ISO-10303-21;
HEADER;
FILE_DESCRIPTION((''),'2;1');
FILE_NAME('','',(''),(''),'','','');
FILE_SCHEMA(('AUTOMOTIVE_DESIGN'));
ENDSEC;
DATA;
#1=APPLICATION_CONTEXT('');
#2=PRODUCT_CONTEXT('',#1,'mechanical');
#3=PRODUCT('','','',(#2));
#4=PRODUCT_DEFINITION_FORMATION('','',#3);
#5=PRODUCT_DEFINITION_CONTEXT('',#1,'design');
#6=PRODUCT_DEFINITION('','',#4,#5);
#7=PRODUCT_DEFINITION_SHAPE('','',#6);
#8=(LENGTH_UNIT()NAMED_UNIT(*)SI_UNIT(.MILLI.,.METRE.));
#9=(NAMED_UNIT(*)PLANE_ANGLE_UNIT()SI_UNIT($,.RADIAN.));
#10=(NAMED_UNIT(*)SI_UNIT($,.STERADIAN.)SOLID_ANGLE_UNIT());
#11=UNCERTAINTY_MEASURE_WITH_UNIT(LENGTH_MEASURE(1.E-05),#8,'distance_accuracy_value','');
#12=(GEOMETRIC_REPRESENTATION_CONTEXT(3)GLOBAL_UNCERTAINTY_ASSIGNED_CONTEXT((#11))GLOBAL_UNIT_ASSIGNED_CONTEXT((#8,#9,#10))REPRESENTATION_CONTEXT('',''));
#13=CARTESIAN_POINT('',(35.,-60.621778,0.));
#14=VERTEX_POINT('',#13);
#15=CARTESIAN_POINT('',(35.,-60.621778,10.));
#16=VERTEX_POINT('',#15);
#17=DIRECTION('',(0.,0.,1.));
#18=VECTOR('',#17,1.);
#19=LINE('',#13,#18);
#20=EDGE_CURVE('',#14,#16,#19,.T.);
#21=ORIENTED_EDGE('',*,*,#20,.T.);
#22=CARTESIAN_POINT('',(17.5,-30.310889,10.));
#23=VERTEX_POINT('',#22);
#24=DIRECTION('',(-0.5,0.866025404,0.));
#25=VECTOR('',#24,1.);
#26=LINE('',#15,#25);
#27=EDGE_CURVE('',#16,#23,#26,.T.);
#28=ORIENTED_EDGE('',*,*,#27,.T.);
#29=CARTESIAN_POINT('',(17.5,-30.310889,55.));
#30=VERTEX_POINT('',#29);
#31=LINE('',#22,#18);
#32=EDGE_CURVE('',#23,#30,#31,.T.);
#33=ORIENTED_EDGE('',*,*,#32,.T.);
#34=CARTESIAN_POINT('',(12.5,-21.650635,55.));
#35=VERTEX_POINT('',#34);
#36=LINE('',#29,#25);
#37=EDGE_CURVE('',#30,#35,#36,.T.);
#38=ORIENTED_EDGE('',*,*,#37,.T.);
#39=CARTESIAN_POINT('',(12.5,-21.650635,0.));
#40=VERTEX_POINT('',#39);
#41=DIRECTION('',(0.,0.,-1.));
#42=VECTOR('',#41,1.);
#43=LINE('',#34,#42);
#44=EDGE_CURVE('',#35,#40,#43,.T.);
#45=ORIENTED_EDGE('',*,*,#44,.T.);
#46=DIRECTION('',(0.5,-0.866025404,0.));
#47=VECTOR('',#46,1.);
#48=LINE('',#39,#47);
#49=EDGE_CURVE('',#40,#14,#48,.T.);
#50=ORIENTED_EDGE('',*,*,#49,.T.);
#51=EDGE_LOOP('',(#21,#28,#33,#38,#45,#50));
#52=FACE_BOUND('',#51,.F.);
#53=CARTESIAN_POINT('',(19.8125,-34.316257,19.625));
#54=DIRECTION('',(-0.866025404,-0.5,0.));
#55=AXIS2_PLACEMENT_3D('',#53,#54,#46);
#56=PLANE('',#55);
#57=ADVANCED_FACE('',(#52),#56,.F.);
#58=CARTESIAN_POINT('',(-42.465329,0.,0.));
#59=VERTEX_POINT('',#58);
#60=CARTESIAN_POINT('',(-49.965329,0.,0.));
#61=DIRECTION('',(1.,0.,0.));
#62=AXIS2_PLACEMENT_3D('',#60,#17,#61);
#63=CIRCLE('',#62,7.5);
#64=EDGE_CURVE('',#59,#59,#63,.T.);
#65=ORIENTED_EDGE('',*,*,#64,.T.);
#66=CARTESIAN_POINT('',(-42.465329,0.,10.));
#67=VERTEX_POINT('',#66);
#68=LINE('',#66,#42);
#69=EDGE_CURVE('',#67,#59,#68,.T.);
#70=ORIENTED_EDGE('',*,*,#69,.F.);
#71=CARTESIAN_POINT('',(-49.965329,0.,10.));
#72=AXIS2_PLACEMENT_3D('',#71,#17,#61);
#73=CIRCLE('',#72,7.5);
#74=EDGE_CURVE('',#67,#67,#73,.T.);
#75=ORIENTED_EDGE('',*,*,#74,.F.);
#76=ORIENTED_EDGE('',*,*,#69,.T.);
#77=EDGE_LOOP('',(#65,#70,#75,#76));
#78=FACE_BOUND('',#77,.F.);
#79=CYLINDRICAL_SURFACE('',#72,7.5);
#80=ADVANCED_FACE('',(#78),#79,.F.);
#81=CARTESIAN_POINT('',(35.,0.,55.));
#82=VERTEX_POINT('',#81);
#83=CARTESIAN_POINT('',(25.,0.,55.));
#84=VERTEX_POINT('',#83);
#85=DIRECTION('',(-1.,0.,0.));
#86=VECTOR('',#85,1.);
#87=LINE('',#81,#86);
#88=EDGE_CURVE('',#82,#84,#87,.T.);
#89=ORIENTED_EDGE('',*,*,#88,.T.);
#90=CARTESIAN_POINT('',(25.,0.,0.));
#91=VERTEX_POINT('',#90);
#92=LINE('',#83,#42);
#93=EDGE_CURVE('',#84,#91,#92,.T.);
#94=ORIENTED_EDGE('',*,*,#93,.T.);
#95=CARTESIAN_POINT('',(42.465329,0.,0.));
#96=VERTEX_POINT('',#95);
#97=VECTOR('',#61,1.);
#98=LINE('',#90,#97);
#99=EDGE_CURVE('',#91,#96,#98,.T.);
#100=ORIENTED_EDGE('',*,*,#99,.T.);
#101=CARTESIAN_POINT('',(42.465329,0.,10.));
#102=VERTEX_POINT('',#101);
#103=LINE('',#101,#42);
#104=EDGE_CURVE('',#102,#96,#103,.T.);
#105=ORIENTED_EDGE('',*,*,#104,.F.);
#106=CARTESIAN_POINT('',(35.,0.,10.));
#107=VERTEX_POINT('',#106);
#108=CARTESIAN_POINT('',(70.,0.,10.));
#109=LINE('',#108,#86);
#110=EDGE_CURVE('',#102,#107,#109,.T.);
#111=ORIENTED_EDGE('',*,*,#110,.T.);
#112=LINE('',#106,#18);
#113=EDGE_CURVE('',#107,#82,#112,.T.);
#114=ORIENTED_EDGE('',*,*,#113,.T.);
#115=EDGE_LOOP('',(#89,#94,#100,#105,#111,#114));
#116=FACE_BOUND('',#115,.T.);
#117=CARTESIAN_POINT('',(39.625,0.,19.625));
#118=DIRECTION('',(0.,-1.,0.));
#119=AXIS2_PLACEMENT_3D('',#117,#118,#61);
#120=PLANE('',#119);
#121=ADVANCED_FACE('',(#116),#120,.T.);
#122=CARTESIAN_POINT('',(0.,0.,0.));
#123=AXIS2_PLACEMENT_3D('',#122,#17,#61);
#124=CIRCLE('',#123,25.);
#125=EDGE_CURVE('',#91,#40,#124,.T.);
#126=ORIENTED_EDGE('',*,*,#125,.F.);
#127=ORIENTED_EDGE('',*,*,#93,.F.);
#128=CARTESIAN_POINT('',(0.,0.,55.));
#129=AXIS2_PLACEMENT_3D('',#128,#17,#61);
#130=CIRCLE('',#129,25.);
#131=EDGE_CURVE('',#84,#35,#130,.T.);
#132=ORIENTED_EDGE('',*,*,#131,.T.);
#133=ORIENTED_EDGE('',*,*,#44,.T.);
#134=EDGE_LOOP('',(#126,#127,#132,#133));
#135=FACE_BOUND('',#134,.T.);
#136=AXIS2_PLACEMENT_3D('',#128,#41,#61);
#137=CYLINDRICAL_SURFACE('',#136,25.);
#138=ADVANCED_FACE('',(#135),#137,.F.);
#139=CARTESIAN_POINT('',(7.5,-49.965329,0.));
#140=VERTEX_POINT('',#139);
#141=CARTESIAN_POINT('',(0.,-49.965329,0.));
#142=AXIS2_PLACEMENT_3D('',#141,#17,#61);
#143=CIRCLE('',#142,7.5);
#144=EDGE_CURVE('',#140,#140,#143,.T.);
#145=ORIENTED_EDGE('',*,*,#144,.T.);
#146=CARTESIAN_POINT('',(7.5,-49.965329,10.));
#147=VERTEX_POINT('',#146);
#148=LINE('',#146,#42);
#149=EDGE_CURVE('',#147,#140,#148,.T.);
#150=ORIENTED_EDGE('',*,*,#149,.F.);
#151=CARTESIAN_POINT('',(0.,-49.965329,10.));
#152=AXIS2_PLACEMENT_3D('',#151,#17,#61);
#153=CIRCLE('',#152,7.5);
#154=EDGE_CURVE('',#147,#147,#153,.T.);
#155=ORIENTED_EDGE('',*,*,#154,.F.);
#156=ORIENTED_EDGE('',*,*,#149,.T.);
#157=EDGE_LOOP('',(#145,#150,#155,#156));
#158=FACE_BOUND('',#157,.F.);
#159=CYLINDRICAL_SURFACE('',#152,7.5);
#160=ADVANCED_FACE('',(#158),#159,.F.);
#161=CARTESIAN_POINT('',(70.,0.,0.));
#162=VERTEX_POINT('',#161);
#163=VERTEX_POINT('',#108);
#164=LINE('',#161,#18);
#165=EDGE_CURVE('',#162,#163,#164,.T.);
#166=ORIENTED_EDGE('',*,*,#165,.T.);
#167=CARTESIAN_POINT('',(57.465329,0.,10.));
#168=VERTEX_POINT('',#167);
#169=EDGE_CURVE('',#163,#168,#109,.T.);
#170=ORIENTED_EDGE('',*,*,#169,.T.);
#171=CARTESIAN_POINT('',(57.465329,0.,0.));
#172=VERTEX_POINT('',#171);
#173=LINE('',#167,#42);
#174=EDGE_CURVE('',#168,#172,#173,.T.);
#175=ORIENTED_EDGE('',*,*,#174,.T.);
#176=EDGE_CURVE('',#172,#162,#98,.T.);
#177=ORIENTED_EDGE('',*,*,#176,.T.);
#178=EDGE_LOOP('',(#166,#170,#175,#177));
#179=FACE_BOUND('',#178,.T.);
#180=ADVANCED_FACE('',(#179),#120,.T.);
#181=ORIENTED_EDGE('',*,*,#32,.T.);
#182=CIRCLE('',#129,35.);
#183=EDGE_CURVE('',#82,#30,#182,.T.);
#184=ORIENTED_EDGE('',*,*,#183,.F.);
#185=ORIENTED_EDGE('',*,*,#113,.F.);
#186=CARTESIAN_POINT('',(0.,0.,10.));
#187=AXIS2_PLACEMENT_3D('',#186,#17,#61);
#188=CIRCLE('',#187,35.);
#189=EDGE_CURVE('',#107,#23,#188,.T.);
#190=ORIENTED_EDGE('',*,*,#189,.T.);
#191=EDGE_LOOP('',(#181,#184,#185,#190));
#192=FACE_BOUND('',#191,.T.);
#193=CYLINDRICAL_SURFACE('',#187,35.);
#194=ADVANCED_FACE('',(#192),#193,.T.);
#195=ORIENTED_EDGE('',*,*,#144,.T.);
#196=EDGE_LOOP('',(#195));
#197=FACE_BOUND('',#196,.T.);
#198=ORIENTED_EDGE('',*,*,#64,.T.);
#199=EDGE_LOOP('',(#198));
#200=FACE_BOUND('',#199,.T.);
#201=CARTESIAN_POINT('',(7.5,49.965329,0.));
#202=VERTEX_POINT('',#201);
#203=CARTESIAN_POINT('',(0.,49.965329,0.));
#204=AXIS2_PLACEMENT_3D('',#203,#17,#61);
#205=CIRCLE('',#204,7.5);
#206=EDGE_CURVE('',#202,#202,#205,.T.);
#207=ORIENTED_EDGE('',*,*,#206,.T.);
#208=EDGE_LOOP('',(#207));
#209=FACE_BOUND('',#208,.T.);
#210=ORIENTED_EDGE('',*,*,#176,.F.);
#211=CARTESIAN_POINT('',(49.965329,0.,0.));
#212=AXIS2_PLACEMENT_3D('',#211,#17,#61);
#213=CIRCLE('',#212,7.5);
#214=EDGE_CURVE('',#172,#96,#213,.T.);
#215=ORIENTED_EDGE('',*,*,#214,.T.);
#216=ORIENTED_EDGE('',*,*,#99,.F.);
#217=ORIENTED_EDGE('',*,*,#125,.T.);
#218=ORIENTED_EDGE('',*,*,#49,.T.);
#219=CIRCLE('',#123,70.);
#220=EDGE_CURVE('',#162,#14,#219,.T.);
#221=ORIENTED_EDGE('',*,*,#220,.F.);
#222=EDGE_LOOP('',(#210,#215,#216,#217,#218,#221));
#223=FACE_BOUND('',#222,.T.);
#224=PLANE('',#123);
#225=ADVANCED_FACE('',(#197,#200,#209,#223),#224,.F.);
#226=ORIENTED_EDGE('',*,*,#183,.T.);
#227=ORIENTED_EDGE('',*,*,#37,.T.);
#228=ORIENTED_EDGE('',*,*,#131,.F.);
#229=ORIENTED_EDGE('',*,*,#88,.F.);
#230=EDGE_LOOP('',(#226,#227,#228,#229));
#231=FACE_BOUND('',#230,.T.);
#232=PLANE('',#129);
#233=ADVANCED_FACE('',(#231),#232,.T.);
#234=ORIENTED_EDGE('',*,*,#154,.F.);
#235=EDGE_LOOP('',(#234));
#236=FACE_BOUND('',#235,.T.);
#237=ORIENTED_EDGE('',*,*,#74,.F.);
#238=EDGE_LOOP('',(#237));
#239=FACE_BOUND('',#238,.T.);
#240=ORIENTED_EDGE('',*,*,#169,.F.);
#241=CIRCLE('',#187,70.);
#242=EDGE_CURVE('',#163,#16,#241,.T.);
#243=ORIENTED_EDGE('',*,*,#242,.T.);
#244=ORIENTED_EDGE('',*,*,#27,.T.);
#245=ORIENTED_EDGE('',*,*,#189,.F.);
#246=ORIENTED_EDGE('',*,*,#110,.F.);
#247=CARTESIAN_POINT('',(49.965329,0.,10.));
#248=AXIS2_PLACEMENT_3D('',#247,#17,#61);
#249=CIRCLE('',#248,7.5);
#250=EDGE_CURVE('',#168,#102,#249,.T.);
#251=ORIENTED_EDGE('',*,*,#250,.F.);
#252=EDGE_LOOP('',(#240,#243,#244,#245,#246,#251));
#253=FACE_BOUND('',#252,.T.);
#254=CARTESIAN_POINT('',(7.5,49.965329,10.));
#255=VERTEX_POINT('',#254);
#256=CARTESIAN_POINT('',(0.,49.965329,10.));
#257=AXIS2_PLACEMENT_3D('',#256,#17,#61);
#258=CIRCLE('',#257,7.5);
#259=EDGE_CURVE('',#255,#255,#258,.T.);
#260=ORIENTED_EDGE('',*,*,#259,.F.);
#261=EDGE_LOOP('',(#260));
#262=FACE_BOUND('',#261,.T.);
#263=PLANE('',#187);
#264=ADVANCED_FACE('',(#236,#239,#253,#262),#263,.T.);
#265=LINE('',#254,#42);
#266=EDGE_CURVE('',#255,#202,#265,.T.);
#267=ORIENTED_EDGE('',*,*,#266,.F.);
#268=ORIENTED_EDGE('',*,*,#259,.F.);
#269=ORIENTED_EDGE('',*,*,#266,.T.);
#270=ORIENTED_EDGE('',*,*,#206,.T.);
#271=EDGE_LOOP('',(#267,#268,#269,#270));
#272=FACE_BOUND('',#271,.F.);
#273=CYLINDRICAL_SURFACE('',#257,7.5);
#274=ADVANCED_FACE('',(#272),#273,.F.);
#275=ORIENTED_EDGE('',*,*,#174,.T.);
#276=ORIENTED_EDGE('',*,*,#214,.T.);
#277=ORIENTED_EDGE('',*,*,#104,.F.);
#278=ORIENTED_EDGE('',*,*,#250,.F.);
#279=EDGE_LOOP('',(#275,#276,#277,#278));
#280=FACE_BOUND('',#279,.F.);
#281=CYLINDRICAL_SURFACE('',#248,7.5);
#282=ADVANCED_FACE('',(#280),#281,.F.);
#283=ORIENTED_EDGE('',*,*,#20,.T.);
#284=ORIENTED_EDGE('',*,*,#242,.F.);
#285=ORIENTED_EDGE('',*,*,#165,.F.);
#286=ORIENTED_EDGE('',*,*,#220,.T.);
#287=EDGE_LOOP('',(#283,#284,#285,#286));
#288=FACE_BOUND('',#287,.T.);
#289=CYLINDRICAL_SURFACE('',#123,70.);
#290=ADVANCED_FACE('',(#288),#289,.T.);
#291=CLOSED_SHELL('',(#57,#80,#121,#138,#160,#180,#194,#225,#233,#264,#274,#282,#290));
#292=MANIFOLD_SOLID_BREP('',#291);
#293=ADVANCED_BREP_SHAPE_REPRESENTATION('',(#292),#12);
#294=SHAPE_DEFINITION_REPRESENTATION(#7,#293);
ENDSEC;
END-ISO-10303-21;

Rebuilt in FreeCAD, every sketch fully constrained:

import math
import FreeCAD as App
import Part
import Sketcher

V = App.Vector

doc = App.newDocument("Part")
params = doc.addObject("Spreadsheet::Sheet", "Params")
for row, (alias, value) in enumerate([
    ("sketch1_width", "10 mm"),
    ("sketch1_width2", "45 mm"),
    ("revolution_angle", "300 deg"),
    ("sketch2_diameter", "15 mm"),
], start=1):
    params.set(f"A{row}", alias)
    params.set(f"B{row}", "=" + value)
    params.setAlias(f"B{row}", alias)

body = doc.addObject("PartDesign::Body", "Body")

# Sketch on XZ plane
sketch1 = body.newObject("Sketcher::SketchObject", "Sketch")
sketch1.AttachmentSupport = (doc.getObject("XZ_Plane"), [""])
sketch1.MapMode = "FlatFace"
sketch1.addGeometry(Part.LineSegment(V(35, 55, 0), V(25, 55, 0)), False)
sketch1.addGeometry(Part.LineSegment(V(25, 55, 0), V(25, 0, 0)), False)
sketch1.addGeometry(Part.LineSegment(V(25, 0, 0), V(70, 0, 0)), False)
sketch1.addGeometry(Part.LineSegment(V(70, 0, 0), V(70, 10, 0)), False)
sketch1.addGeometry(Part.LineSegment(V(70, 10, 0), V(35, 10, 0)), False)
sketch1.addGeometry(Part.LineSegment(V(35, 10, 0), V(35, 55, 0)), False)
sketch1.addConstraint(Sketcher.Constraint("Coincident", 0, 2, 1, 1))
sketch1.addConstraint(Sketcher.Constraint("Coincident", 1, 2, 2, 1))
sketch1.addConstraint(Sketcher.Constraint("Coincident", 2, 2, 3, 1))
sketch1.addConstraint(Sketcher.Constraint("Coincident", 3, 2, 4, 1))
sketch1.addConstraint(Sketcher.Constraint("Coincident", 4, 2, 5, 1))
sketch1.addConstraint(Sketcher.Constraint("Coincident", 5, 2, 0, 1))
sketch1.addConstraint(Sketcher.Constraint("Horizontal", 0))
sketch1.addConstraint(Sketcher.Constraint("Vertical", 1))
sketch1.addConstraint(Sketcher.Constraint("Horizontal", 2))
sketch1.addConstraint(Sketcher.Constraint("Vertical", 3))
sketch1.addConstraint(Sketcher.Constraint("Horizontal", 4))
sketch1.addConstraint(Sketcher.Constraint("Vertical", 5))
sketch1.addConstraint(Sketcher.Constraint("PointOnObject", 1, 2, -1))
sketch1.addConstraint(Sketcher.Constraint("Equal", 0, 3))
sketch1.addConstraint(Sketcher.Constraint("Equal", 2, 5))
sketch1.addConstraint(Sketcher.Constraint("DistanceX", 0, 2, 0, 1, 10.0))
sketch1.addConstraint(Sketcher.Constraint("DistanceX", 2, 1, 2, 2, 45.0))
sketch1.addConstraint(Sketcher.Constraint("DistanceX", -1, 1, 0, 2, 25.0))
sketch1.setExpression("Constraints[15]", "Params.sketch1_width")
sketch1.setExpression("Constraints[16]", "Params.sketch1_width2")
revolution = body.newObject("PartDesign::Revolution", "Revolution")
revolution.Profile = sketch1
revolution.ReferenceAxis = (sketch1, ["V_Axis"])
revolution.setExpression("Angle", "Params.revolution_angle")

# Sketch on XY plane
sketch2 = body.newObject("Sketcher::SketchObject", "Sketch001")
sketch2.AttachmentSupport = (doc.getObject("XY_Plane"), [""])
sketch2.MapMode = "FlatFace"
sketch2.AttachmentOffset = App.Placement(V(0, 0, 10), App.Rotation())
sketch2.addGeometry(Part.LineSegment(V(42.465329, 0, 0), V(57.465329, 0, 0)), False)
sketch2.addGeometry(Part.ArcOfCircle(Part.Circle(V(49.965329, 0, 0), V(0, 0, 1), 7.5), math.radians(0), math.radians(180)), False)
sketch2.addGeometry(Part.Circle(V(0, 49.965329, 0), V(0, 0, 1), 7.5), False)
sketch2.addGeometry(Part.Circle(V(-49.965329, 0, 0), V(0, 0, 1), 7.5), False)
sketch2.addGeometry(Part.Circle(V(0, -49.965329, 0), V(0, 0, 1), 7.5), False)
sketch2.addConstraint(Sketcher.Constraint("Coincident", 0, 1, 1, 2))
sketch2.addConstraint(Sketcher.Constraint("Coincident", 1, 1, 0, 2))
sketch2.addConstraint(Sketcher.Constraint("Horizontal", 0))
sketch2.addConstraint(Sketcher.Constraint("Equal", 1, 2))
sketch2.addConstraint(Sketcher.Constraint("Equal", 2, 3))
sketch2.addConstraint(Sketcher.Constraint("Equal", 3, 4))
sketch2.addConstraint(Sketcher.Constraint("Symmetric", 1, 3, 3, 3, -1, 1))
sketch2.addConstraint(Sketcher.Constraint("Symmetric", 2, 3, 4, 3, -1, 1))
sketch2.addConstraint(Sketcher.Constraint("PointOnObject", 1, 3, -1))
sketch2.addConstraint(Sketcher.Constraint("PointOnObject", 2, 3, -2))
sketch2.addConstraint(Sketcher.Constraint("PointOnObject", 0, 1, -1))
sketch2.addConstraint(Sketcher.Constraint("Diameter", 2, 15.0))
sketch2.addConstraint(Sketcher.Constraint("DistanceX", -1, 1, 1, 3, 49.965329))
sketch2.addConstraint(Sketcher.Constraint("DistanceY", -1, 1, 2, 3, 49.965329))
sketch2.setExpression("Constraints[11]", "Params.sketch2_diameter")
pocket1 = body.newObject("PartDesign::Pocket", "Pocket")
pocket1.Profile = sketch2
pocket1.Type = "ThroughAll"

doc.recompute()
